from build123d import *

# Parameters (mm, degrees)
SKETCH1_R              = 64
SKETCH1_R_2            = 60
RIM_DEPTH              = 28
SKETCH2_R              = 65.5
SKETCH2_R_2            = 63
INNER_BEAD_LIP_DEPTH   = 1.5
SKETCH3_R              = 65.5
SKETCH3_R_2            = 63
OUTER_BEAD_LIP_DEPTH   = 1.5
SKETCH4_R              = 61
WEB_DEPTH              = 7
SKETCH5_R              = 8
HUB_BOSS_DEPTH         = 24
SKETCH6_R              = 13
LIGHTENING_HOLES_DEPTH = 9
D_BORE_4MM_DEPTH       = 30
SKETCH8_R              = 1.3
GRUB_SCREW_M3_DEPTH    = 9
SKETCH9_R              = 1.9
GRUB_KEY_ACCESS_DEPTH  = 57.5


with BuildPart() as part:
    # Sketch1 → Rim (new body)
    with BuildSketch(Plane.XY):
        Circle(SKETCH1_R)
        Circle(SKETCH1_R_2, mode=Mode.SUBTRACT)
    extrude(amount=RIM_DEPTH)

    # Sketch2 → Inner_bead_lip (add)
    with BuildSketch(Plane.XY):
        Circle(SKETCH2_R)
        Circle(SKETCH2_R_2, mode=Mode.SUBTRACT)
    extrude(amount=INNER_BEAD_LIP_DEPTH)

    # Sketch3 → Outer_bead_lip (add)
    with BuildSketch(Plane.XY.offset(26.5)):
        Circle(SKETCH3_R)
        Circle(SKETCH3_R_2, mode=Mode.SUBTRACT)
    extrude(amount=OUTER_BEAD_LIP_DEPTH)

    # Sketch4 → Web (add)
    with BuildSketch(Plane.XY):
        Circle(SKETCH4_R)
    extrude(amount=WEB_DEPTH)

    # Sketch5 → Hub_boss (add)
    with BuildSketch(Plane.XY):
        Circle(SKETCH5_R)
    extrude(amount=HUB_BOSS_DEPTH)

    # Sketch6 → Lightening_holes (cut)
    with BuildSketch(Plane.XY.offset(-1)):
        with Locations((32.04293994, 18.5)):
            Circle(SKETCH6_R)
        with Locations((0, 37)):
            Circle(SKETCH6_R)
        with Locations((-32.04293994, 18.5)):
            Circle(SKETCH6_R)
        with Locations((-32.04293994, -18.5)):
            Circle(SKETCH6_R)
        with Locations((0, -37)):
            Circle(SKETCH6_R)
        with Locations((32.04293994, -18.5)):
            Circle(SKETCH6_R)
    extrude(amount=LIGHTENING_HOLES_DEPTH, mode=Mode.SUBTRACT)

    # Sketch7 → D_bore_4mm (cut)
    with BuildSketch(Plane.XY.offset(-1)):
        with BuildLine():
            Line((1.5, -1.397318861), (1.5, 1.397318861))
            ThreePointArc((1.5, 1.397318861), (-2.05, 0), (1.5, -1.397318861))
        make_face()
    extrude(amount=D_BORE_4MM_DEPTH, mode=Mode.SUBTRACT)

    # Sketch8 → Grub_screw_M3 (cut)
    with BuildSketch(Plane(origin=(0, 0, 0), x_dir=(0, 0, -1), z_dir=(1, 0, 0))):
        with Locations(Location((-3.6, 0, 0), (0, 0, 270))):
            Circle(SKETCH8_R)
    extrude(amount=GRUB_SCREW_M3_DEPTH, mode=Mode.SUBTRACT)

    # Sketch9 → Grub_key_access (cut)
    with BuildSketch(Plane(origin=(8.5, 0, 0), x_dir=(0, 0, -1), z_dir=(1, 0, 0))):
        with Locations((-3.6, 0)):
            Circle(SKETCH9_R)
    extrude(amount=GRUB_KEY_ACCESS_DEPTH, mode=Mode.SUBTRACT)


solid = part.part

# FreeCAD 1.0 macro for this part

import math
import FreeCAD as App
import Part
import Sketcher

V = App.Vector
Q = App.Units.Quantity

doc = App.newDocument("Part")
body = doc.addObject("PartDesign::Body", "Body")

# Sketch on XY plane
sketch1 = doc.addObject("Sketcher::SketchObject", "Sketch")
body.addObject(sketch1)
sketch1.AttachmentSupport = (doc.XY_Plane, [""])
sketch1.MapMode = "FlatFace"
sketch1.addGeometry(Part.Circle(V(0, 0, 0), V(0, 0, 1), 64), False)
sketch1.addGeometry(Part.Circle(V(0, 0, 0), V(0, 0, 1), 60), False)
sketch1.addConstraint(Sketcher.Constraint("Coincident", 0, 3, -1, 1))
sketch1.addConstraint(Sketcher.Constraint("Coincident", 1, 3, -1, 1))
sketch1.addConstraint(Sketcher.Constraint("Diameter", 0, Q("128 mm")))
sketch1.addConstraint(Sketcher.Constraint("Diameter", 1, Q("120 mm")))
pad1 = doc.addObject("PartDesign::Pad", "Pad")
body.addObject(pad1)
pad1.Profile = sketch1
pad1.Length = 28

# Sketch on XY plane
sketch2 = doc.addObject("Sketcher::SketchObject", "Sketch001")
body.addObject(sketch2)
sketch2.AttachmentSupport = (doc.XY_Plane, [""])
sketch2.MapMode = "FlatFace"
sketch2.addGeometry(Part.Circle(V(0, 0, 0), V(0, 0, 1), 65.5), False)
sketch2.addGeometry(Part.Circle(V(0, 0, 0), V(0, 0, 1), 63), False)
sketch2.addConstraint(Sketcher.Constraint("Coincident", 0, 3, -1, 1))
sketch2.addConstraint(Sketcher.Constraint("Coincident", 1, 3, -1, 1))
sketch2.addConstraint(Sketcher.Constraint("Diameter", 0, Q("131 mm")))
sketch2.addConstraint(Sketcher.Constraint("Diameter", 1, Q("126 mm")))
pad2 = doc.addObject("PartDesign::Pad", "Pad001")
body.addObject(pad2)
pad2.Profile = sketch2
pad2.Length = 1.5

# Sketch on XY plane
sketch3 = doc.addObject("Sketcher::SketchObject", "Sketch002")
body.addObject(sketch3)
sketch3.AttachmentSupport = (doc.XY_Plane, [""])
sketch3.MapMode = "FlatFace"
sketch3.AttachmentOffset = App.Placement(V(0, 0, 26.5), App.Rotation())
sketch3.addGeometry(Part.Circle(V(0, 0, 0), V(0, 0, 1), 65.5), False)
sketch3.addGeometry(Part.Circle(V(0, 0, 0), V(0, 0, 1), 63), False)
sketch3.addConstraint(Sketcher.Constraint("Coincident", 0, 3, -1, 1))
sketch3.addConstraint(Sketcher.Constraint("Coincident", 1, 3, -1, 1))
sketch3.addConstraint(Sketcher.Constraint("Diameter", 0, Q("131 mm")))
sketch3.addConstraint(Sketcher.Constraint("Diameter", 1, Q("126 mm")))
pad3 = doc.addObject("PartDesign::Pad", "Pad002")
body.addObject(pad3)
pad3.Profile = sketch3
pad3.Length = 1.5

# Sketch on XY plane
sketch4 = doc.addObject("Sketcher::SketchObject", "Sketch003")
body.addObject(sketch4)
sketch4.AttachmentSupport = (doc.XY_Plane, [""])
sketch4.MapMode = "FlatFace"
sketch4.addGeometry(Part.Circle(V(0, 0, 0), V(0, 0, 1), 61), False)
sketch4.addConstraint(Sketcher.Constraint("Coincident", 0, 3, -1, 1))
sketch4.addConstraint(Sketcher.Constraint("Diameter", 0, Q("122 mm")))
pad4 = doc.addObject("PartDesign::Pad", "Pad003")
body.addObject(pad4)
pad4.Profile = sketch4
pad4.Length = 7

# Sketch on XY plane
sketch5 = doc.addObject("Sketcher::SketchObject", "Sketch004")
body.addObject(sketch5)
sketch5.AttachmentSupport = (doc.XY_Plane, [""])
sketch5.MapMode = "FlatFace"
sketch5.addGeometry(Part.Circle(V(0, 0, 0), V(0, 0, 1), 8), False)
sketch5.addConstraint(Sketcher.Constraint("Coincident", 0, 3, -1, 1))
sketch5.addConstraint(Sketcher.Constraint("Diameter", 0, Q("16 mm")))
pad5 = doc.addObject("PartDesign::Pad", "Pad004")
body.addObject(pad5)
pad5.Profile = sketch5
pad5.Length = 24

# Sketch on XY plane
sketch6 = doc.addObject("Sketcher::SketchObject", "Sketch005")
body.addObject(sketch6)
sketch6.AttachmentSupport = (doc.XY_Plane, [""])
sketch6.MapMode = "FlatFace"
sketch6.AttachmentOffset = App.Placement(V(0, 0, -1), App.Rotation())
sketch6.addGeometry(Part.Circle(V(32.04294, 18.5, 0), V(0, 0, 1), 13), False)
sketch6.addGeometry(Part.Circle(V(0, 37, 0), V(0, 0, 1), 13), False)
sketch6.addGeometry(Part.Circle(V(-32.04294, 18.5, 0), V(0, 0, 1), 13), False)
sketch6.addGeometry(Part.Circle(V(-32.04294, -18.5, 0), V(0, 0, 1), 13), False)
sketch6.addGeometry(Part.Circle(V(0, -37, 0), V(0, 0, 1), 13), False)
sketch6.addGeometry(Part.Circle(V(32.04294, -18.5, 0), V(0, 0, 1), 13), False)
sketch6.addConstraint(Sketcher.Constraint("Equal", 0, 1))
sketch6.addConstraint(Sketcher.Constraint("Equal", 1, 2))
sketch6.addConstraint(Sketcher.Constraint("Equal", 2, 3))
sketch6.addConstraint(Sketcher.Constraint("Equal", 3, 4))
sketch6.addConstraint(Sketcher.Constraint("Equal", 4, 5))
sketch6.addConstraint(Sketcher.Constraint("Symmetric", 0, 3, 3, 3, -1, 1))
sketch6.addConstraint(Sketcher.Constraint("Symmetric", 1, 3, 4, 3, -1, 1))
sketch6.addConstraint(Sketcher.Constraint("Symmetric", 2, 3, 5, 3, -1, 1))
sketch6.addConstraint(Sketcher.Constraint("Symmetric", 0, 3, 2, 3, -2))
sketch6.addConstraint(Sketcher.Constraint("PointOnObject", 1, 3, -2))
sketch6.addConstraint(Sketcher.Constraint("Diameter", 0, Q("26 mm")))
sketch6.addConstraint(Sketcher.Constraint("DistanceY", -1, 1, 1, 3, Q("37 mm")))
sketch6.addConstraint(Sketcher.Constraint("DistanceY", 3, 3, 2, 3, Q("37 mm")))
sketch6.addConstraint(Sketcher.Constraint("DistanceX", -1, 1, 0, 3, Q("32.04294 mm")))
pocket1 = doc.addObject("PartDesign::Pocket", "Pocket")
body.addObject(pocket1)
pocket1.Profile = sketch6
pocket1.Length = 9
pocket1.Reversed = True

# Sketch on XY plane
sketch7 = doc.addObject("Sketcher::SketchObject", "Sketch006")
body.addObject(sketch7)
sketch7.AttachmentSupport = (doc.XY_Plane, [""])
sketch7.MapMode = "FlatFace"
sketch7.AttachmentOffset = App.Placement(V(0, 0, -1), App.Rotation())
sketch7.addGeometry(Part.LineSegment(V(1.5, -1.397319, 0), V(1.5, 1.397319, 0)), False)
sketch7.addGeometry(Part.ArcOfCircle(Part.Circle(V(0, 0, 0), V(0, 0, 1), 2.05), math.radians(42.970284), math.radians(317.029716)), False)
sketch7.addConstraint(Sketcher.Constraint("Coincident", 0, 1, 1, 2))
sketch7.addConstraint(Sketcher.Constraint("Coincident", 1, 1, 0, 2))
sketch7.addConstraint(Sketcher.Constraint("Vertical", 0))
sketch7.addConstraint(Sketcher.Constraint("Coincident", 1, 3, -1, 1))
sketch7.addConstraint(Sketcher.Constraint("Radius", 1, Q("2.05 mm")))
sketch7.addConstraint(Sketcher.Constraint("DistanceX", -1, 1, 0, 1, Q("1.5 mm")))
pocket2 = doc.addObject("PartDesign::Pocket", "Pocket001")
body.addObject(pocket2)
pocket2.Profile = sketch7
pocket2.Length = 30
pocket2.Reversed = True

# Sketch on YZ plane
sketch8 = doc.addObject("Sketcher::SketchObject", "Sketch007")
body.addObject(sketch8)
sketch8.AttachmentSupport = (doc.YZ_Plane, [""])
sketch8.MapMode = "FlatFace"
sketch8.addGeometry(Part.Circle(V(0, 3.6, 0), V(0, 0, 1), 1.3), False)
sketch8.addConstraint(Sketcher.Constraint("PointOnObject", 0, 3, -2))
sketch8.addConstraint(Sketcher.Constraint("Diameter", 0, Q("2.6 mm")))
sketch8.addConstraint(Sketcher.Constraint("DistanceY", -1, 1, 0, 3, Q("3.6 mm")))
pocket3 = doc.addObject("PartDesign::Pocket", "Pocket002")
body.addObject(pocket3)
pocket3.Profile = sketch8
pocket3.Length = 9
pocket3.Reversed = True

# Sketch on YZ plane
sketch9 = doc.addObject("Sketcher::SketchObject", "Sketch008")
body.addObject(sketch9)
sketch9.AttachmentSupport = (doc.YZ_Plane, [""])
sketch9.MapMode = "FlatFace"
sketch9.AttachmentOffset = App.Placement(V(0, 0, 8.5), App.Rotation())
sketch9.addGeometry(Part.Circle(V(0, 3.6, 0), V(0, 0, 1), 1.9), False)
sketch9.addConstraint(Sketcher.Constraint("PointOnObject", 0, 3, -2))
sketch9.addConstraint(Sketcher.Constraint("Diameter", 0, Q("3.8 mm")))
sketch9.addConstraint(Sketcher.Constraint("DistanceY", -1, 1, 0, 3, Q("3.6 mm")))
pocket4 = doc.addObject("PartDesign::Pocket", "Pocket003")
body.addObject(pocket4)
pocket4.Profile = sketch9
pocket4.Length = 57.5
pocket4.Reversed = True

doc.recompute()
